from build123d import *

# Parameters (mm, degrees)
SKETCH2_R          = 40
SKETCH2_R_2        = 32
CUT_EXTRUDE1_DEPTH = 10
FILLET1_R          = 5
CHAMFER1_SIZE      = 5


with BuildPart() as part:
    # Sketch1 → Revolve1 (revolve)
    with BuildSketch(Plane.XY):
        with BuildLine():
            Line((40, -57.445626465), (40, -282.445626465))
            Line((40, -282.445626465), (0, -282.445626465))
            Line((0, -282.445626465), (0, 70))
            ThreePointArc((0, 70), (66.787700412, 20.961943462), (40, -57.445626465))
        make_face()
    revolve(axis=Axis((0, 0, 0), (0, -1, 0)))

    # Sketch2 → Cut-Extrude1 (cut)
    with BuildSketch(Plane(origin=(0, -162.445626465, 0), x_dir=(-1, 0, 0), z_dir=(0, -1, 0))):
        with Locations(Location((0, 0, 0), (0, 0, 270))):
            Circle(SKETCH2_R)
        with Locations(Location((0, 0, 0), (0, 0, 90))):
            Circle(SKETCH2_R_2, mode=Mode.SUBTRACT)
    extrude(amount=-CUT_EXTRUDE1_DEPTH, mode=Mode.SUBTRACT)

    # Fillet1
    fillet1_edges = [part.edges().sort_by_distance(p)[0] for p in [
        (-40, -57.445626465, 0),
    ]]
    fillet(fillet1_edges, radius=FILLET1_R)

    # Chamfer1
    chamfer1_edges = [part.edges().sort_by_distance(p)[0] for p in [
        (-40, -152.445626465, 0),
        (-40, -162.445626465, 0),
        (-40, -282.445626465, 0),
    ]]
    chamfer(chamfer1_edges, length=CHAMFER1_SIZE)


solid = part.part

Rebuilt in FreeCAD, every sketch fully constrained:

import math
import FreeCAD as App
import Part
import Sketcher
from FreeCAD import Vector
Q = App.Units.Quantity


def edges_at(feature, points):
    """Names of the edges that pass closest to the given points."""
    edges = feature.Shape.Edges
    near = lambda p: min(range(len(edges)), key=lambda i: edges[i].distToShape(Part.Vertex(*p))[0])
    return sorted({f"Edge{near(p) + 1}" for p in points})

doc = App.newDocument("Part")
body = doc.addObject("PartDesign::Body", "Body")

# Sketch on XY plane
sketch1 = body.newObject("Sketcher::SketchObject", "Sketch")
sketch1.AttachmentSupport = (doc.getObject("XY_Plane"), [""])
sketch1.MapMode = "FlatFace"
sketch1.addGeometry([
    Part.LineSegment(Vector(40, -282, 0), Vector(40, -57, 0)),
    Part.ArcOfCircle(Part.Circle(Vector(0, 0, 0), Vector(0, 0, 1), 70), math.radians(-55), math.radians(90)),
    Part.LineSegment(Vector(0, 70, 0), Vector(0, -282, 0)),
    Part.LineSegment(Vector(0, -282, 0), Vector(40, -282, 0)),
], False)
sketch1.addConstraint([
    Sketcher.Constraint("Coincident", 0, 2, 1, 1),
    Sketcher.Constraint("Coincident", 1, 2, 2, 1),
    Sketcher.Constraint("Coincident", 2, 2, 3, 1),
    Sketcher.Constraint("Coincident", 3, 2, 0, 1),
    Sketcher.Constraint("Vertical", 0),
    Sketcher.Constraint("Vertical", 2),
    Sketcher.Constraint("Horizontal", 3),
    Sketcher.Constraint("Coincident", 1, 3, -1, 1),
    Sketcher.Constraint("PointOnObject", 1, 2, -2),
    Sketcher.Constraint("Radius", 1, Q("70 mm")),
    Sketcher.Constraint("DistanceX", 3, 1, 3, 2, Q("40 mm")),
    Sketcher.Constraint("DistanceY", 0, 1, 0, 2, Q("225 mm")),
])
revolution = body.newObject("PartDesign::Revolution", "Revolution")
revolution.Profile = sketch1
revolution.ReferenceAxis = (sketch1, ["V_Axis"])
revolution.Angle = 360

# Sketch on XZ plane
sketch2 = body.newObject("Sketcher::SketchObject", "Sketch001")
sketch2.AttachmentSupport = (doc.getObject("XZ_Plane"), [""])
sketch2.MapMode = "FlatFace"
sketch2.AttachmentOffset = App.Placement(Vector(0, 0, 162.445626), App.Rotation())
sketch2.addGeometry([
    Part.Circle(Vector(0, 0, 0), Vector(0, 0, 1), 40),
    Part.Circle(Vector(0, 0, 0), Vector(0, 0, 1), 32),
], False)
sketch2.addConstraint([
    Sketcher.Constraint("Coincident", 0, 3, -1, 1),
    Sketcher.Constraint("Coincident", 1, 3, -1, 1),
    Sketcher.Constraint("Diameter", 0, Q("80 mm")),
    Sketcher.Constraint("Diameter", 1, Q("64 mm")),
])
pocket1 = body.newObject("PartDesign::Pocket", "Pocket")
pocket1.Profile = sketch2
pocket1.Length = 10
doc.recompute()

fillet = body.newObject("PartDesign::Fillet", "Fillet")
fillet.Base = (pocket1, edges_at(pocket1, [(-40, -57.446, 0)]))
fillet.Radius = 5
doc.recompute()

chamfer = body.newObject("PartDesign::Chamfer", "Chamfer")
chamfer.Base = (fillet, edges_at(fillet, [(-40, -152.446, 0), (-40, -162.446, 0), (-40, -282.446, 0)]))
chamfer.Size = 5

doc.recompute()
